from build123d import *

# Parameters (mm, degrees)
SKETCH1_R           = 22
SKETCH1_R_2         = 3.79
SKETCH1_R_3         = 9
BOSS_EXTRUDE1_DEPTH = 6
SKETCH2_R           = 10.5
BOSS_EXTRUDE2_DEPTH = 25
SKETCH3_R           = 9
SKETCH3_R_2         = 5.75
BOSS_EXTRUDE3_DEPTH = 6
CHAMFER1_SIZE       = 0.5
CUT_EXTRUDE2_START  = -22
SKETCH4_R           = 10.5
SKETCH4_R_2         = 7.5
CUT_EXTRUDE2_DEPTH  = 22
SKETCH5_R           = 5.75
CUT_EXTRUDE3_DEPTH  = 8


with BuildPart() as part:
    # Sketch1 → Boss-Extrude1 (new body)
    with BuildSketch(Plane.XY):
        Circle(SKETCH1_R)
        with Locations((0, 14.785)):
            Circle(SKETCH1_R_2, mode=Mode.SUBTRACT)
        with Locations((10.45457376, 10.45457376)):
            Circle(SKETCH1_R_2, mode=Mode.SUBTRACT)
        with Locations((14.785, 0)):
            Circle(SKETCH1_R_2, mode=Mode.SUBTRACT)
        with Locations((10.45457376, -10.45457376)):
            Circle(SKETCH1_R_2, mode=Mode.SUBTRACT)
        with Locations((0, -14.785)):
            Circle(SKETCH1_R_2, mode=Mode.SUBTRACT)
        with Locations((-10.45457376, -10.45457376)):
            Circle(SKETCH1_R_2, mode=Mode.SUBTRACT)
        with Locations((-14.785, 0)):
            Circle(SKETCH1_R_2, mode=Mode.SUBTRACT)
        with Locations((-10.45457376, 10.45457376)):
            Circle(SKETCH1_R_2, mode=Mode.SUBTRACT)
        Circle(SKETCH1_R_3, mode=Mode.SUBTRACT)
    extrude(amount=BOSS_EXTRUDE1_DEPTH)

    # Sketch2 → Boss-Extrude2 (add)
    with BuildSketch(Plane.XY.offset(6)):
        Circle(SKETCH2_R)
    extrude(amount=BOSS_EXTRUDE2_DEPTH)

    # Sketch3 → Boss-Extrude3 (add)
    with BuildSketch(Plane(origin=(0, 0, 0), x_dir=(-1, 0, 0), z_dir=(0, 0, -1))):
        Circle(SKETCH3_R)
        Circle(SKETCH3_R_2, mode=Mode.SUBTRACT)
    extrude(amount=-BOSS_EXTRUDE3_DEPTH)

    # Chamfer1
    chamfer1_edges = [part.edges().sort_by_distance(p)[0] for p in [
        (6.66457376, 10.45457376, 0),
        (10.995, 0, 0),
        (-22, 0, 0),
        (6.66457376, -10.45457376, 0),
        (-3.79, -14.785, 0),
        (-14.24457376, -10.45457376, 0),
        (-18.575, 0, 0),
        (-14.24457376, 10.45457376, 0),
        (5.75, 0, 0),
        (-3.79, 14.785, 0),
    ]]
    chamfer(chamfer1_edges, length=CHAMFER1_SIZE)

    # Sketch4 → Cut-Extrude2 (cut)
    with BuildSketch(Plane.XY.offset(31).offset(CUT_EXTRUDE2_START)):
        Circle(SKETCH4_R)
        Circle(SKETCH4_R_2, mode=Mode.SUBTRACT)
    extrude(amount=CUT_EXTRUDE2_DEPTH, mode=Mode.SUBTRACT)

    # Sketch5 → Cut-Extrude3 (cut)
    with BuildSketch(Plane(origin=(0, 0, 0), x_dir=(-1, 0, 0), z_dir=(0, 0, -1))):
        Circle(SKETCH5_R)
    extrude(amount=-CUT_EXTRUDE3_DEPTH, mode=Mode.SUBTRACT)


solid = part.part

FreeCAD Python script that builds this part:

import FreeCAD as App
import Part
import Sketcher
from FreeCAD import Vector
Q = App.Units.Quantity


def edges_at(feature, points):
    """Names of the edges that pass closest to the given points."""
    edges = feature.Shape.Edges
    near = lambda p: min(range(len(edges)), key=lambda i: edges[i].distToShape(Part.Vertex(*p))[0])
    return sorted({f"Edge{near(p) + 1}" for p in points})

doc = App.newDocument("Part")
params = doc.addObject("Spreadsheet::Sheet", "Params")
for row, (alias, value) in enumerate([
    ("sketch1_diameter", "44 mm"),
    ("sketch1_diameter2", "18 mm"),
    ("sketch1_diameter3", "7.58 mm"),
    ("pad1_length", "6 mm"),
    ("sketch2_diameter", "21 mm"),
    ("pad2_length", "25 mm"),
    ("sketch3_diameter", "18 mm"),
    ("sketch3_diameter2", "11.5 mm"),
    ("pad3_length", "6 mm"),
    ("chamfer_size", "0.5 mm"),
    ("sketch4_diameter", "21 mm"),
    ("sketch4_diameter2", "15 mm"),
    ("pocket1_length", "22 mm"),
    ("sketch5_diameter", "11.5 mm"),
    ("pocket2_length", "8 mm"),
], start=1):
    params.set(f"A{row}", alias)
    params.set(f"B{row}", "=" + value)
    params.setAlias(f"B{row}", alias)

body = doc.addObject("PartDesign::Body", "Body")

sketch1 = doc.addObject("Sketcher::SketchObject", "Sketch")
body.addObject(sketch1)
sketch1.AttachmentSupport = (doc.XY_Plane, [""])
sketch1.MapMode = "FlatFace"
sketch1.addGeometry([
    Part.Circle(Vector(0, 0, 0), Vector(0, 0, 1), 22),
    Part.Circle(Vector(-10.454574, -10.454574, 0), Vector(0, 0, 1), 3.79),
    Part.Circle(Vector(0, -14.785, 0), Vector(0, 0, 1), 3.79),
    Part.Circle(Vector(-14.785, 0, 0), Vector(0, 0, 1), 3.79),
    Part.Circle(Vector(10.454574, -10.454574, 0), Vector(0, 0, 1), 3.79),
    Part.Circle(Vector(14.785, 0, 0), Vector(0, 0, 1), 3.79),
    Part.Circle(Vector(0, 0, 0), Vector(0, 0, 1), 9),
    Part.Circle(Vector(-10.454574, 10.454574, 0), Vector(0, 0, 1), 3.79),
    Part.Circle(Vector(0, 14.785, 0), Vector(0, 0, 1), 3.79),
    Part.Circle(Vector(10.454574, 10.454574, 0), Vector(0, 0, 1), 3.79),
], False)
sketch1.addConstraint([
    Sketcher.Constraint("Coincident", 0, 3, -1, 1),
    Sketcher.Constraint("Coincident", 6, 3, -1, 1),
    Sketcher.Constraint("Equal", 1, 2),
    Sketcher.Constraint("Equal", 2, 3),
    Sketcher.Constraint("Equal", 3, 4),
    Sketcher.Constraint("Equal", 4, 5),
    Sketcher.Constraint("Equal", 5, 7),
    Sketcher.Constraint("Equal", 7, 8),
    Sketcher.Constraint("Equal", 8, 9),
    Sketcher.Constraint("Symmetric", 3, 3, 5, 3, -1, 1),
    Sketcher.Constraint("Symmetric", 4, 3, 7, 3, -1, 1),
    Sketcher.Constraint("Symmetric", 2, 3, 8, 3, -1, 1),
    Sketcher.Constraint("Symmetric", 1, 3, 9, 3, -1, 1),
    Sketcher.Constraint("Symmetric", 1, 3, 4, 3, -2),
    Sketcher.Constraint("PointOnObject", 2, 3, -2),
    Sketcher.Constraint("PointOnObject", 3, 3, -1),
    Sketcher.Constraint("Diameter", 0, Q("44 mm")),
    Sketcher.Constraint("Diameter", 6, Q("18 mm")),
    Sketcher.Constraint("Diameter", 1, Q("7.58 mm")),
    Sketcher.Constraint("DistanceX", 3, 3, 5, 3, Q("29.57 mm")),
    Sketcher.Constraint("DistanceY", 2, 3, -1, 1, Q("14.785 mm")),
    Sketcher.Constraint("DistanceX", 1, 3, -1, 1, Q("10.454574 mm")),
    Sketcher.Constraint("DistanceY", 1, 3, -1, 1, Q("10.454574 mm")),
])
sketch1.setExpression("Constraints[16]", "Params.sketch1_diameter")
sketch1.setExpression("Constraints[17]", "Params.sketch1_diameter2")
sketch1.setExpression("Constraints[18]", "Params.sketch1_diameter3")
pad1 = doc.addObject("PartDesign::Pad", "Pad")
body.addObject(pad1)
pad1.Profile = sketch1
pad1.setExpression("Length", "Params.pad1_length")

sketch2 = doc.addObject("Sketcher::SketchObject", "Sketch001")
body.addObject(sketch2)
sketch2.AttachmentSupport = (doc.XY_Plane, [""])
sketch2.MapMode = "FlatFace"
sketch2.AttachmentOffset = App.Placement(Vector(0, 0, 6), App.Rotation())
sketch2.addGeometry(Part.Circle(Vector(0, 0, 0), Vector(0, 0, 1), 10.5), False)
sketch2.addConstraint([
    Sketcher.Constraint("Coincident", 0, 3, -1, 1),
    Sketcher.Constraint("Diameter", 0, Q("21 mm")),
])
sketch2.setExpression("Constraints[1]", "Params.sketch2_diameter")
pad2 = doc.addObject("PartDesign::Pad", "Pad001")
body.addObject(pad2)
pad2.Profile = sketch2
pad2.setExpression("Length", "Params.pad2_length")

sketch3 = doc.addObject("Sketcher::SketchObject", "Sketch002")
body.addObject(sketch3)
sketch3.AttachmentSupport = (doc.XY_Plane, [""])
sketch3.MapMode = "FlatFace"
sketch3.addGeometry([
    Part.Circle(Vector(0, 0, 0), Vector(0, 0, 1), 9),
    Part.Circle(Vector(0, 0, 0), Vector(0, 0, 1), 5.75),
], False)
sketch3.addConstraint([
    Sketcher.Constraint("Coincident", 0, 3, -1, 1),
    Sketcher.Constraint("Coincident", 1, 3, -1, 1),
    Sketcher.Constraint("Diameter", 0, Q("18 mm")),
    Sketcher.Constraint("Diameter", 1, Q("11.5 mm")),
])
sketch3.setExpression("Constraints[2]", "Params.sketch3_diameter")
sketch3.setExpression("Constraints[3]", "Params.sketch3_diameter2")
pad3 = doc.addObject("PartDesign::Pad", "Pad002")
body.addObject(pad3)
pad3.Profile = sketch3
pad3.setExpression("Length", "Params.pad3_length")
doc.recompute()

chamfer = doc.addObject("PartDesign::Chamfer", "Chamfer")
body.addObject(chamfer)
chamfer.Base = (pad3, edges_at(pad3, [
    (6.665, 10.455, 0),
    (10.995, 0, 0),
    (-22, 0, 0),
    (6.665, -10.455, 0),
    (-3.79, -14.785, 0),
    (-14.245, -10.455, 0),
    (-18.575, 0, 0),
    (-14.245, 10.455, 0),
    (5.75, 0, 0),
    (-3.79, 14.785, 0),
]))
chamfer.setExpression("Size", "Params.chamfer_size")

sketch4 = doc.addObject("Sketcher::SketchObject", "Sketch003")
body.addObject(sketch4)
sketch4.AttachmentSupport = (doc.XY_Plane, [""])
sketch4.MapMode = "FlatFace"
sketch4.AttachmentOffset = App.Placement(Vector(0, 0, 9), App.Rotation())
sketch4.addGeometry([
    Part.Circle(Vector(0, 0, 0), Vector(0, 0, 1), 10.5),
    Part.Circle(Vector(0, 0, 0), Vector(0, 0, 1), 7.5),
], False)
sketch4.addConstraint([
    Sketcher.Constraint("Coincident", 0, 3, -1, 1),
    Sketcher.Constraint("Coincident", 1, 3, -1, 1),
    Sketcher.Constraint("Diameter", 0, Q("21 mm")),
    Sketcher.Constraint("Diameter", 1, Q("15 mm")),
])
sketch4.setExpression("Constraints[2]", "Params.sketch4_diameter")
sketch4.setExpression("Constraints[3]", "Params.sketch4_diameter2")
pocket1 = doc.addObject("PartDesign::Pocket", "Pocket")
body.addObject(pocket1)
pocket1.Profile = sketch4
pocket1.setExpression("Length", "Params.pocket1_length")
pocket1.Reversed = True

sketch5 = doc.addObject("Sketcher::SketchObject", "Sketch004")
body.addObject(sketch5)
sketch5.AttachmentSupport = (doc.XY_Plane, [""])
sketch5.MapMode = "FlatFace"
sketch5.addGeometry(Part.Circle(Vector(0, 0, 0), Vector(0, 0, 1), 5.75), False)
sketch5.addConstraint([
    Sketcher.Constraint("Coincident", 0, 3, -1, 1),
    Sketcher.Constraint("Diameter", 0, Q("11.5 mm")),
])
sketch5.setExpression("Constraints[1]", "Params.sketch5_diameter")
pocket2 = doc.addObject("PartDesign::Pocket", "Pocket001")
body.addObject(pocket2)
pocket2.Profile = sketch5
pocket2.setExpression("Length", "Params.pocket2_length")
pocket2.Reversed = True

doc.recompute()
